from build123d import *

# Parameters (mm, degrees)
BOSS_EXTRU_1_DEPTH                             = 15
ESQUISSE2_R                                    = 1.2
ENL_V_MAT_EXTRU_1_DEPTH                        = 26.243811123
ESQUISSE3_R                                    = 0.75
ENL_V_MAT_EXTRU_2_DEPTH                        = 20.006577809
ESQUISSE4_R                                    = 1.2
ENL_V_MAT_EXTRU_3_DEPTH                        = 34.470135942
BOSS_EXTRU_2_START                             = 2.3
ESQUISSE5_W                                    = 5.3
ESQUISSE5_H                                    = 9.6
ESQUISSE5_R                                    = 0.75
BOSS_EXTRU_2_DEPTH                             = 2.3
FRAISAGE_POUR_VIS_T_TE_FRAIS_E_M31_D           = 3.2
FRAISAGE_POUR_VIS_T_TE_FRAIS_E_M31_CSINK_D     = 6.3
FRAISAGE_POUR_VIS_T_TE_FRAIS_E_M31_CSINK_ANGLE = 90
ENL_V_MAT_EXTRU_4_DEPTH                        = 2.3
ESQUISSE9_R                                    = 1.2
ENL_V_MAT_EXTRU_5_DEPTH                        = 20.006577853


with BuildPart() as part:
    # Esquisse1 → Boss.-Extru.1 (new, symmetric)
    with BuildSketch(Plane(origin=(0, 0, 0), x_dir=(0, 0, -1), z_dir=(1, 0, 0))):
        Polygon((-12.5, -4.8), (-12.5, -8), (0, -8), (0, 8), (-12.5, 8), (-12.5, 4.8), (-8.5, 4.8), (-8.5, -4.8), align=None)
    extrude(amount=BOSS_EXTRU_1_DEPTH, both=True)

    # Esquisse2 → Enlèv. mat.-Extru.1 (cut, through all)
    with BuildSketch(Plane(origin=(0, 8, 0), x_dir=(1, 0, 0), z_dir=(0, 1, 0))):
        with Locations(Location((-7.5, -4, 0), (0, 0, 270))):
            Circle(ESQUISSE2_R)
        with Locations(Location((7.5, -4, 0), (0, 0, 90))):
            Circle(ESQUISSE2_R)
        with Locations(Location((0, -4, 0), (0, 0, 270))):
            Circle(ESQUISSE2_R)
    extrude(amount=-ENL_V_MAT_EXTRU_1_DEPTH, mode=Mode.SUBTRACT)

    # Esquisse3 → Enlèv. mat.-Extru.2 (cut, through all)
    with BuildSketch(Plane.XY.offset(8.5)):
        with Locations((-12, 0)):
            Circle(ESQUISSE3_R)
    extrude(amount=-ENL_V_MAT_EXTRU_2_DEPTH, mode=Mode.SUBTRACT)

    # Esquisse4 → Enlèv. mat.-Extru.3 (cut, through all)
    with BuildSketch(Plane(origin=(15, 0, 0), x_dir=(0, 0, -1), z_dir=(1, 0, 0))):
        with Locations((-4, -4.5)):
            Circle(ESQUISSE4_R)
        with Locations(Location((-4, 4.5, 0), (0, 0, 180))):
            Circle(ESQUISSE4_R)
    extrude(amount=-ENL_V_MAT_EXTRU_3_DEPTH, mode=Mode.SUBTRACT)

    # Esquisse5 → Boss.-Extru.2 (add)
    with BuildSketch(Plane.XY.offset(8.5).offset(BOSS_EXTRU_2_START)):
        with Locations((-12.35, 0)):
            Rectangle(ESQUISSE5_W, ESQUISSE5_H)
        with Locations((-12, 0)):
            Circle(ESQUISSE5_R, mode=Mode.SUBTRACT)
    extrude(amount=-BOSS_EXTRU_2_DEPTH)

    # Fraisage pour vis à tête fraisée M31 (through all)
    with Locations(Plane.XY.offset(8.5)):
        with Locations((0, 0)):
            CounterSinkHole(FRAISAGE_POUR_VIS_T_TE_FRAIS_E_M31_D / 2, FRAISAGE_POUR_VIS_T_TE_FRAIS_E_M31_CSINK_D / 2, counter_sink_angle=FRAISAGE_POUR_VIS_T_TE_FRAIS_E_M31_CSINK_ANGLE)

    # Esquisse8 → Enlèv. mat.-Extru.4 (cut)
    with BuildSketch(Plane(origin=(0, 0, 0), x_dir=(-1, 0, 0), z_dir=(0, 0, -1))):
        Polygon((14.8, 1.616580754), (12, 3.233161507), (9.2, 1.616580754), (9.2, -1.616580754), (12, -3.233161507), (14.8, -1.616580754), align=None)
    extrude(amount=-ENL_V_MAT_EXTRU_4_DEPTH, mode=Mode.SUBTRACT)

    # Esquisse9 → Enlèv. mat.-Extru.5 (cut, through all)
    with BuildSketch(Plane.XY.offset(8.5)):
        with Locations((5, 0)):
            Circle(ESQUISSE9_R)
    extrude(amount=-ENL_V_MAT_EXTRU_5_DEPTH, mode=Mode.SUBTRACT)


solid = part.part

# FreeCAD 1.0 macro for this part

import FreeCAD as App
import Part
import Sketcher
from FreeCAD import Vector
Q = App.Units.Quantity

doc = App.newDocument("Part")
body = doc.addObject("PartDesign::Body", "Body")

sketch1 = body.newObject("Sketcher::SketchObject", "Sketch")
sketch1.AttachmentSupport = (doc.getObject("YZ_Plane"), [""])
sketch1.MapMode = "FlatFace"
sketch1.addGeometry(Part.LineSegment(Vector(-4.8, 12.5, 0), Vector(-8, 12.5, 0)), False)
sketch1.addGeometry(Part.LineSegment(Vector(-8, 12.5, 0), Vector(-8, 0, 0)), False)
sketch1.addGeometry(Part.LineSegment(Vector(-8, 0, 0), Vector(8, 0, 0)), False)
sketch1.addGeometry(Part.LineSegment(Vector(8, 0, 0), Vector(8, 12.5, 0)), False)
sketch1.addGeometry(Part.LineSegment(Vector(8, 12.5, 0), Vector(4.8, 12.5, 0)), False)
sketch1.addGeometry(Part.LineSegment(Vector(4.8, 12.5, 0), Vector(4.8, 8.5, 0)), False)
sketch1.addGeometry(Part.LineSegment(Vector(4.8, 8.5, 0), Vector(-4.8, 8.5, 0)), False)
sketch1.addGeometry(Part.LineSegment(Vector(-4.8, 8.5, 0), Vector(-4.8, 12.5, 0)), False)
sketch1.addConstraint(Sketcher.Constraint("Coincident", 0, 2, 1, 1))
sketch1.addConstraint(Sketcher.Constraint("Coincident", 1, 2, 2, 1))
sketch1.addConstraint(Sketcher.Constraint("Coincident", 2, 2, 3, 1))
sketch1.addConstraint(Sketcher.Constraint("Coincident", 3, 2, 4, 1))
sketch1.addConstraint(Sketcher.Constraint("Coincident", 4, 2, 5, 1))
sketch1.addConstraint(Sketcher.Constraint("Coincident", 5, 2, 6, 1))
sketch1.addConstraint(Sketcher.Constraint("Coincident", 6, 2, 7, 1))
sketch1.addConstraint(Sketcher.Constraint("Coincident", 7, 2, 0, 1))
sketch1.addConstraint(Sketcher.Constraint("Horizontal", 0))
sketch1.addConstraint(Sketcher.Constraint("Vertical", 1))
sketch1.addConstraint(Sketcher.Constraint("Horizontal", 2))
sketch1.addConstraint(Sketcher.Constraint("Vertical", 3))
sketch1.addConstraint(Sketcher.Constraint("Horizontal", 4))
sketch1.addConstraint(Sketcher.Constraint("Vertical", 5))
sketch1.addConstraint(Sketcher.Constraint("Horizontal", 6))
sketch1.addConstraint(Sketcher.Constraint("Vertical", 7))
sketch1.addConstraint(Sketcher.Constraint("Symmetric", 1, 2, 2, 2, -1, 1))
sketch1.addConstraint(Sketcher.Constraint("Symmetric", 4, 2, 7, 2, -2))
sketch1.addConstraint(Sketcher.Constraint("DistanceX", 2, 1, 2, 2, Q("16 mm")))
sketch1.addConstraint(Sketcher.Constraint("DistanceY", 5, 2, 5, 1, Q("4 mm")))
sketch1.addConstraint(Sketcher.Constraint("DistanceX", 0, 2, 0, 1, Q("3.2 mm")))
sketch1.addConstraint(Sketcher.Constraint("DistanceY", 1, 2, 1, 1, Q("12.5 mm")))
pad1 = body.newObject("PartDesign::Pad", "Pad")
pad1.Profile = sketch1
pad1.Length = 30
pad1.Midplane = True

sketch2 = body.newObject("Sketcher::SketchObject", "Sketch001")
sketch2.AttachmentSupport = (doc.getObject("XZ_Plane"), [""])
sketch2.MapMode = "FlatFace"
sketch2.AttachmentOffset = App.Placement(Vector(0, 0, -8), App.Rotation())
sketch2.addGeometry(Part.Circle(Vector(-7.5, 4, 0), Vector(0, 0, 1), 1.2), False)
sketch2.addGeometry(Part.Circle(Vector(7.5, 4, 0), Vector(0, 0, 1), 1.2), False)
sketch2.addGeometry(Part.Circle(Vector(0, 4, 0), Vector(0, 0, 1), 1.2), False)
sketch2.addConstraint(Sketcher.Constraint("Equal", 0, 1))
sketch2.addConstraint(Sketcher.Constraint("Equal", 1, 2))
sketch2.addConstraint(Sketcher.Constraint("Symmetric", 0, 3, 1, 3, -2))
sketch2.addConstraint(Sketcher.Constraint("PointOnObject", 2, 3, -2))
sketch2.addConstraint(Sketcher.Constraint("Horizontal", 1, 3, 2, 3))
sketch2.addConstraint(Sketcher.Constraint("Diameter", 0, Q("2.4 mm")))
sketch2.addConstraint(Sketcher.Constraint("DistanceY", -1, 1, 0, 3, Q("4 mm")))
sketch2.addConstraint(Sketcher.Constraint("DistanceX", 0, 3, 1, 3, Q("15 mm")))
pocket1 = body.newObject("PartDesign::Pocket", "Pocket")
pocket1.Profile = sketch2
pocket1.Type = "ThroughAll"
pocket1.Reversed = True

sketch3 = body.newObject("Sketcher::SketchObject", "Sketch002")
sketch3.AttachmentSupport = (doc.getObject("XY_Plane"), [""])
sketch3.MapMode = "FlatFace"
sketch3.AttachmentOffset = App.Placement(Vector(0, 0, 8.5), App.Rotation())
sketch3.addGeometry(Part.Circle(Vector(-12, 0, 0), Vector(0, 0, 1), 0.75), False)
sketch3.addConstraint(Sketcher.Constraint("PointOnObject", 0, 3, -1))
sketch3.addConstraint(Sketcher.Constraint("Diameter", 0, Q("1.5 mm")))
sketch3.addConstraint(Sketcher.Constraint("DistanceX", 0, 3, -1, 1, Q("12 mm")))
pocket2 = body.newObject("PartDesign::Pocket", "Pocket001")
pocket2.Profile = sketch3
pocket2.Type = "ThroughAll"

sketch4 = body.newObject("Sketcher::SketchObject", "Sketch003")
sketch4.AttachmentSupport = (doc.getObject("YZ_Plane"), [""])
sketch4.MapMode = "FlatFace"
sketch4.AttachmentOffset = App.Placement(Vector(0, 0, 15), App.Rotation())
sketch4.addGeometry(Part.Circle(Vector(-4.5, 4, 0), Vector(0, 0, 1), 1.2), False)
sketch4.addGeometry(Part.Circle(Vector(4.5, 4, 0), Vector(0, 0, 1), 1.2), False)
sketch4.addConstraint(Sketcher.Constraint("Equal", 0, 1))
sketch4.addConstraint(Sketcher.Constraint("Symmetric", 0, 3, 1, 3, -2))
sketch4.addConstraint(Sketcher.Constraint("Diameter", 0, Q("2.4 mm")))
sketch4.addConstraint(Sketcher.Constraint("DistanceY", -1, 1, 0, 3, Q("4 mm")))
sketch4.addConstraint(Sketcher.Constraint("DistanceX", 0, 3, 1, 3, Q("9 mm")))
pocket3 = body.newObject("PartDesign::Pocket", "Pocket002")
pocket3.Profile = sketch4
pocket3.Type = "ThroughAll"

sketch5 = body.newObject("Sketcher::SketchObject", "Sketch004")
sketch5.AttachmentSupport = (doc.getObject("XY_Plane"), [""])
sketch5.MapMode = "FlatFace"
sketch5.AttachmentOffset = App.Placement(Vector(0, 0, 10.8), App.Rotation())
sketch5.addGeometry(Part.LineSegment(Vector(-15, 4.8, 0), Vector(-15, -4.8, 0)), False)
sketch5.addGeometry(Part.LineSegment(Vector(-15, -4.8, 0), Vector(-9.7, -4.8, 0)), False)
sketch5.addGeometry(Part.LineSegment(Vector(-9.7, -4.8, 0), Vector(-9.7, 4.8, 0)), False)
sketch5.addGeometry(Part.LineSegment(Vector(-9.7, 4.8, 0), Vector(-15, 4.8, 0)), False)
sketch5.addGeometry(Part.Circle(Vector(-12, 0, 0), Vector(0, 0, 1), 0.75), False)
sketch5.addConstraint(Sketcher.Constraint("Coincident", 0, 2, 1, 1))
sketch5.addConstraint(Sketcher.Constraint("Coincident", 1, 2, 2, 1))
sketch5.addConstraint(Sketcher.Constraint("Coincident", 2, 2, 3, 1))
sketch5.addConstraint(Sketcher.Constraint("Coincident", 3, 2, 0, 1))
sketch5.addConstraint(Sketcher.Constraint("Vertical", 0))
sketch5.addConstraint(Sketcher.Constraint("Horizontal", 1))
sketch5.addConstraint(Sketcher.Constraint("Vertical", 2))
sketch5.addConstraint(Sketcher.Constraint("Horizontal", 3))
sketch5.addConstraint(Sketcher.Constraint("PointOnObject", 4, 3, -1))
sketch5.addConstraint(Sketcher.Constraint("Diameter", 4, Q("1.5 mm")))
sketch5.addConstraint(Sketcher.Constraint("DistanceX", 1, 1, 1, 2, Q("5.3 mm")))
sketch5.addConstraint(Sketcher.Constraint("DistanceY", 0, 2, 0, 1, Q("9.6 mm")))
sketch5.addConstraint(Sketcher.Constraint("DistanceX", 4, 3, -1, 1, Q("12 mm")))
sketch5.addConstraint(Sketcher.Constraint("DistanceX", 0, 2, -1, 1, Q("15 mm")))
sketch5.addConstraint(Sketcher.Constraint("DistanceY", 0, 2, -1, 1, Q("4.8 mm")))
pad2 = body.newObject("PartDesign::Pad", "Pad001")
pad2.Profile = sketch5
pad2.Length = 2.3
pad2.Reversed = True

sketch6 = body.newObject("Sketcher::SketchObject", "Sketch005")
sketch6.AttachmentSupport = (doc.getObject("XY_Plane"), [""])
sketch6.MapMode = "FlatFace"
sketch6.AttachmentOffset = App.Placement(Vector(0, 0, 8.5), App.Rotation())
sketch6.addGeometry(Part.Circle(Vector(0, 0, 0), Vector(0, 0, 1), 1.6), False)
sketch6.addConstraint(Sketcher.Constraint("Coincident", 0, 3, -1, 1))
sketch6.addConstraint(Sketcher.Constraint("Diameter", 0, Q("3.2 mm")))
doc.recompute()
hole = body.newObject("PartDesign::Hole", "Hole")
hole.Profile = sketch6
hole.ThreadType = "None"
hole.Diameter = 3.2
hole.DepthType = "ThroughAll"
hole.HoleCutType = "Countersink"
hole.HoleCutDiameter = 6.3
hole.HoleCutCountersinkAngle = 90

sketch7 = body.newObject("Sketcher::SketchObject", "Sketch006")
sketch7.AttachmentSupport = (doc.getObject("XY_Plane"), [""])
sketch7.MapMode = "FlatFace"
sketch7.addGeometry(Part.LineSegment(Vector(-14.8, 1.616581, 0), Vector(-12, 3.233162, 0)), False)
sketch7.addGeometry(Part.LineSegment(Vector(-12, 3.233162, 0), Vector(-9.2, 1.616581, 0)), False)
sketch7.addGeometry(Part.LineSegment(Vector(-9.2, 1.616581, 0), Vector(-9.2, -1.616581, 0)), False)
sketch7.addGeometry(Part.LineSegment(Vector(-9.2, -1.616581, 0), Vector(-12, -3.233162, 0)), False)
sketch7.addGeometry(Part.LineSegment(Vector(-12, -3.233162, 0), Vector(-14.8, -1.616581, 0)), False)
sketch7.addGeometry(Part.LineSegment(Vector(-14.8, -1.616581, 0), Vector(-14.8, 1.616581, 0)), False)
sketch7.addConstraint(Sketcher.Constraint("Coincident", 0, 2, 1, 1))
sketch7.addConstraint(Sketcher.Constraint("Coincident", 1, 2, 2, 1))
sketch7.addConstraint(Sketcher.Constraint("Coincident", 2, 2, 3, 1))
sketch7.addConstraint(Sketcher.Constraint("Coincident", 3, 2, 4, 1))
sketch7.addConstraint(Sketcher.Constraint("Coincident", 4, 2, 5, 1))
sketch7.addConstraint(Sketcher.Constraint("Coincident", 5, 2, 0, 1))
sketch7.addConstraint(Sketcher.Constraint("Vertical", 2))
sketch7.addConstraint(Sketcher.Constraint("Vertical", 5))
sketch7.addConstraint(Sketcher.Constraint("Symmetric", 0, 2, 3, 2, -1))
sketch7.addConstraint(Sketcher.Constraint("Parallel", 0, 3))
sketch7.addConstraint(Sketcher.Constraint("Parallel", 1, 4))
sketch7.addConstraint(Sketcher.Constraint("Horizontal", 2, 2, 4, 2))
sketch7.addConstraint(Sketcher.Constraint("Horizontal", 1, 2, 5, 2))
sketch7.addConstraint(Sketcher.Constraint("Angle", 0, Q("30 deg")))
sketch7.addConstraint(Sketcher.Constraint("DistanceX", 0, 2, -1, 1, Q("12 mm")))
sketch7.addConstraint(Sketcher.Constraint("DistanceX", 1, 2, -1, 1, Q("9.2 mm")))
sketch7.addConstraint(Sketcher.Constraint("DistanceY", 2, 2, 2, 1, Q("3.233162 mm")))
pocket4 = body.newObject("PartDesign::Pocket", "Pocket003")
pocket4.Profile = sketch7
pocket4.Length = 2.3
pocket4.Reversed = True

sketch8 = body.newObject("Sketcher::SketchObject", "Sketch007")
sketch8.AttachmentSupport = (doc.getObject("XY_Plane"), [""])
sketch8.MapMode = "FlatFace"
sketch8.AttachmentOffset = App.Placement(Vector(0, 0, 8.5), App.Rotation())
sketch8.addGeometry(Part.Circle(Vector(5, 0, 0), Vector(0, 0, 1), 1.2), False)
sketch8.addConstraint(Sketcher.Constraint("PointOnObject", 0, 3, -1))
sketch8.addConstraint(Sketcher.Constraint("Diameter", 0, Q("2.4 mm")))
sketch8.addConstraint(Sketcher.Constraint("DistanceX", -1, 1, 0, 3, Q("5 mm")))
pocket5 = body.newObject("PartDesign::Pocket", "Pocket004")
pocket5.Profile = sketch8
pocket5.Type = "ThroughAll"

doc.recompute()
